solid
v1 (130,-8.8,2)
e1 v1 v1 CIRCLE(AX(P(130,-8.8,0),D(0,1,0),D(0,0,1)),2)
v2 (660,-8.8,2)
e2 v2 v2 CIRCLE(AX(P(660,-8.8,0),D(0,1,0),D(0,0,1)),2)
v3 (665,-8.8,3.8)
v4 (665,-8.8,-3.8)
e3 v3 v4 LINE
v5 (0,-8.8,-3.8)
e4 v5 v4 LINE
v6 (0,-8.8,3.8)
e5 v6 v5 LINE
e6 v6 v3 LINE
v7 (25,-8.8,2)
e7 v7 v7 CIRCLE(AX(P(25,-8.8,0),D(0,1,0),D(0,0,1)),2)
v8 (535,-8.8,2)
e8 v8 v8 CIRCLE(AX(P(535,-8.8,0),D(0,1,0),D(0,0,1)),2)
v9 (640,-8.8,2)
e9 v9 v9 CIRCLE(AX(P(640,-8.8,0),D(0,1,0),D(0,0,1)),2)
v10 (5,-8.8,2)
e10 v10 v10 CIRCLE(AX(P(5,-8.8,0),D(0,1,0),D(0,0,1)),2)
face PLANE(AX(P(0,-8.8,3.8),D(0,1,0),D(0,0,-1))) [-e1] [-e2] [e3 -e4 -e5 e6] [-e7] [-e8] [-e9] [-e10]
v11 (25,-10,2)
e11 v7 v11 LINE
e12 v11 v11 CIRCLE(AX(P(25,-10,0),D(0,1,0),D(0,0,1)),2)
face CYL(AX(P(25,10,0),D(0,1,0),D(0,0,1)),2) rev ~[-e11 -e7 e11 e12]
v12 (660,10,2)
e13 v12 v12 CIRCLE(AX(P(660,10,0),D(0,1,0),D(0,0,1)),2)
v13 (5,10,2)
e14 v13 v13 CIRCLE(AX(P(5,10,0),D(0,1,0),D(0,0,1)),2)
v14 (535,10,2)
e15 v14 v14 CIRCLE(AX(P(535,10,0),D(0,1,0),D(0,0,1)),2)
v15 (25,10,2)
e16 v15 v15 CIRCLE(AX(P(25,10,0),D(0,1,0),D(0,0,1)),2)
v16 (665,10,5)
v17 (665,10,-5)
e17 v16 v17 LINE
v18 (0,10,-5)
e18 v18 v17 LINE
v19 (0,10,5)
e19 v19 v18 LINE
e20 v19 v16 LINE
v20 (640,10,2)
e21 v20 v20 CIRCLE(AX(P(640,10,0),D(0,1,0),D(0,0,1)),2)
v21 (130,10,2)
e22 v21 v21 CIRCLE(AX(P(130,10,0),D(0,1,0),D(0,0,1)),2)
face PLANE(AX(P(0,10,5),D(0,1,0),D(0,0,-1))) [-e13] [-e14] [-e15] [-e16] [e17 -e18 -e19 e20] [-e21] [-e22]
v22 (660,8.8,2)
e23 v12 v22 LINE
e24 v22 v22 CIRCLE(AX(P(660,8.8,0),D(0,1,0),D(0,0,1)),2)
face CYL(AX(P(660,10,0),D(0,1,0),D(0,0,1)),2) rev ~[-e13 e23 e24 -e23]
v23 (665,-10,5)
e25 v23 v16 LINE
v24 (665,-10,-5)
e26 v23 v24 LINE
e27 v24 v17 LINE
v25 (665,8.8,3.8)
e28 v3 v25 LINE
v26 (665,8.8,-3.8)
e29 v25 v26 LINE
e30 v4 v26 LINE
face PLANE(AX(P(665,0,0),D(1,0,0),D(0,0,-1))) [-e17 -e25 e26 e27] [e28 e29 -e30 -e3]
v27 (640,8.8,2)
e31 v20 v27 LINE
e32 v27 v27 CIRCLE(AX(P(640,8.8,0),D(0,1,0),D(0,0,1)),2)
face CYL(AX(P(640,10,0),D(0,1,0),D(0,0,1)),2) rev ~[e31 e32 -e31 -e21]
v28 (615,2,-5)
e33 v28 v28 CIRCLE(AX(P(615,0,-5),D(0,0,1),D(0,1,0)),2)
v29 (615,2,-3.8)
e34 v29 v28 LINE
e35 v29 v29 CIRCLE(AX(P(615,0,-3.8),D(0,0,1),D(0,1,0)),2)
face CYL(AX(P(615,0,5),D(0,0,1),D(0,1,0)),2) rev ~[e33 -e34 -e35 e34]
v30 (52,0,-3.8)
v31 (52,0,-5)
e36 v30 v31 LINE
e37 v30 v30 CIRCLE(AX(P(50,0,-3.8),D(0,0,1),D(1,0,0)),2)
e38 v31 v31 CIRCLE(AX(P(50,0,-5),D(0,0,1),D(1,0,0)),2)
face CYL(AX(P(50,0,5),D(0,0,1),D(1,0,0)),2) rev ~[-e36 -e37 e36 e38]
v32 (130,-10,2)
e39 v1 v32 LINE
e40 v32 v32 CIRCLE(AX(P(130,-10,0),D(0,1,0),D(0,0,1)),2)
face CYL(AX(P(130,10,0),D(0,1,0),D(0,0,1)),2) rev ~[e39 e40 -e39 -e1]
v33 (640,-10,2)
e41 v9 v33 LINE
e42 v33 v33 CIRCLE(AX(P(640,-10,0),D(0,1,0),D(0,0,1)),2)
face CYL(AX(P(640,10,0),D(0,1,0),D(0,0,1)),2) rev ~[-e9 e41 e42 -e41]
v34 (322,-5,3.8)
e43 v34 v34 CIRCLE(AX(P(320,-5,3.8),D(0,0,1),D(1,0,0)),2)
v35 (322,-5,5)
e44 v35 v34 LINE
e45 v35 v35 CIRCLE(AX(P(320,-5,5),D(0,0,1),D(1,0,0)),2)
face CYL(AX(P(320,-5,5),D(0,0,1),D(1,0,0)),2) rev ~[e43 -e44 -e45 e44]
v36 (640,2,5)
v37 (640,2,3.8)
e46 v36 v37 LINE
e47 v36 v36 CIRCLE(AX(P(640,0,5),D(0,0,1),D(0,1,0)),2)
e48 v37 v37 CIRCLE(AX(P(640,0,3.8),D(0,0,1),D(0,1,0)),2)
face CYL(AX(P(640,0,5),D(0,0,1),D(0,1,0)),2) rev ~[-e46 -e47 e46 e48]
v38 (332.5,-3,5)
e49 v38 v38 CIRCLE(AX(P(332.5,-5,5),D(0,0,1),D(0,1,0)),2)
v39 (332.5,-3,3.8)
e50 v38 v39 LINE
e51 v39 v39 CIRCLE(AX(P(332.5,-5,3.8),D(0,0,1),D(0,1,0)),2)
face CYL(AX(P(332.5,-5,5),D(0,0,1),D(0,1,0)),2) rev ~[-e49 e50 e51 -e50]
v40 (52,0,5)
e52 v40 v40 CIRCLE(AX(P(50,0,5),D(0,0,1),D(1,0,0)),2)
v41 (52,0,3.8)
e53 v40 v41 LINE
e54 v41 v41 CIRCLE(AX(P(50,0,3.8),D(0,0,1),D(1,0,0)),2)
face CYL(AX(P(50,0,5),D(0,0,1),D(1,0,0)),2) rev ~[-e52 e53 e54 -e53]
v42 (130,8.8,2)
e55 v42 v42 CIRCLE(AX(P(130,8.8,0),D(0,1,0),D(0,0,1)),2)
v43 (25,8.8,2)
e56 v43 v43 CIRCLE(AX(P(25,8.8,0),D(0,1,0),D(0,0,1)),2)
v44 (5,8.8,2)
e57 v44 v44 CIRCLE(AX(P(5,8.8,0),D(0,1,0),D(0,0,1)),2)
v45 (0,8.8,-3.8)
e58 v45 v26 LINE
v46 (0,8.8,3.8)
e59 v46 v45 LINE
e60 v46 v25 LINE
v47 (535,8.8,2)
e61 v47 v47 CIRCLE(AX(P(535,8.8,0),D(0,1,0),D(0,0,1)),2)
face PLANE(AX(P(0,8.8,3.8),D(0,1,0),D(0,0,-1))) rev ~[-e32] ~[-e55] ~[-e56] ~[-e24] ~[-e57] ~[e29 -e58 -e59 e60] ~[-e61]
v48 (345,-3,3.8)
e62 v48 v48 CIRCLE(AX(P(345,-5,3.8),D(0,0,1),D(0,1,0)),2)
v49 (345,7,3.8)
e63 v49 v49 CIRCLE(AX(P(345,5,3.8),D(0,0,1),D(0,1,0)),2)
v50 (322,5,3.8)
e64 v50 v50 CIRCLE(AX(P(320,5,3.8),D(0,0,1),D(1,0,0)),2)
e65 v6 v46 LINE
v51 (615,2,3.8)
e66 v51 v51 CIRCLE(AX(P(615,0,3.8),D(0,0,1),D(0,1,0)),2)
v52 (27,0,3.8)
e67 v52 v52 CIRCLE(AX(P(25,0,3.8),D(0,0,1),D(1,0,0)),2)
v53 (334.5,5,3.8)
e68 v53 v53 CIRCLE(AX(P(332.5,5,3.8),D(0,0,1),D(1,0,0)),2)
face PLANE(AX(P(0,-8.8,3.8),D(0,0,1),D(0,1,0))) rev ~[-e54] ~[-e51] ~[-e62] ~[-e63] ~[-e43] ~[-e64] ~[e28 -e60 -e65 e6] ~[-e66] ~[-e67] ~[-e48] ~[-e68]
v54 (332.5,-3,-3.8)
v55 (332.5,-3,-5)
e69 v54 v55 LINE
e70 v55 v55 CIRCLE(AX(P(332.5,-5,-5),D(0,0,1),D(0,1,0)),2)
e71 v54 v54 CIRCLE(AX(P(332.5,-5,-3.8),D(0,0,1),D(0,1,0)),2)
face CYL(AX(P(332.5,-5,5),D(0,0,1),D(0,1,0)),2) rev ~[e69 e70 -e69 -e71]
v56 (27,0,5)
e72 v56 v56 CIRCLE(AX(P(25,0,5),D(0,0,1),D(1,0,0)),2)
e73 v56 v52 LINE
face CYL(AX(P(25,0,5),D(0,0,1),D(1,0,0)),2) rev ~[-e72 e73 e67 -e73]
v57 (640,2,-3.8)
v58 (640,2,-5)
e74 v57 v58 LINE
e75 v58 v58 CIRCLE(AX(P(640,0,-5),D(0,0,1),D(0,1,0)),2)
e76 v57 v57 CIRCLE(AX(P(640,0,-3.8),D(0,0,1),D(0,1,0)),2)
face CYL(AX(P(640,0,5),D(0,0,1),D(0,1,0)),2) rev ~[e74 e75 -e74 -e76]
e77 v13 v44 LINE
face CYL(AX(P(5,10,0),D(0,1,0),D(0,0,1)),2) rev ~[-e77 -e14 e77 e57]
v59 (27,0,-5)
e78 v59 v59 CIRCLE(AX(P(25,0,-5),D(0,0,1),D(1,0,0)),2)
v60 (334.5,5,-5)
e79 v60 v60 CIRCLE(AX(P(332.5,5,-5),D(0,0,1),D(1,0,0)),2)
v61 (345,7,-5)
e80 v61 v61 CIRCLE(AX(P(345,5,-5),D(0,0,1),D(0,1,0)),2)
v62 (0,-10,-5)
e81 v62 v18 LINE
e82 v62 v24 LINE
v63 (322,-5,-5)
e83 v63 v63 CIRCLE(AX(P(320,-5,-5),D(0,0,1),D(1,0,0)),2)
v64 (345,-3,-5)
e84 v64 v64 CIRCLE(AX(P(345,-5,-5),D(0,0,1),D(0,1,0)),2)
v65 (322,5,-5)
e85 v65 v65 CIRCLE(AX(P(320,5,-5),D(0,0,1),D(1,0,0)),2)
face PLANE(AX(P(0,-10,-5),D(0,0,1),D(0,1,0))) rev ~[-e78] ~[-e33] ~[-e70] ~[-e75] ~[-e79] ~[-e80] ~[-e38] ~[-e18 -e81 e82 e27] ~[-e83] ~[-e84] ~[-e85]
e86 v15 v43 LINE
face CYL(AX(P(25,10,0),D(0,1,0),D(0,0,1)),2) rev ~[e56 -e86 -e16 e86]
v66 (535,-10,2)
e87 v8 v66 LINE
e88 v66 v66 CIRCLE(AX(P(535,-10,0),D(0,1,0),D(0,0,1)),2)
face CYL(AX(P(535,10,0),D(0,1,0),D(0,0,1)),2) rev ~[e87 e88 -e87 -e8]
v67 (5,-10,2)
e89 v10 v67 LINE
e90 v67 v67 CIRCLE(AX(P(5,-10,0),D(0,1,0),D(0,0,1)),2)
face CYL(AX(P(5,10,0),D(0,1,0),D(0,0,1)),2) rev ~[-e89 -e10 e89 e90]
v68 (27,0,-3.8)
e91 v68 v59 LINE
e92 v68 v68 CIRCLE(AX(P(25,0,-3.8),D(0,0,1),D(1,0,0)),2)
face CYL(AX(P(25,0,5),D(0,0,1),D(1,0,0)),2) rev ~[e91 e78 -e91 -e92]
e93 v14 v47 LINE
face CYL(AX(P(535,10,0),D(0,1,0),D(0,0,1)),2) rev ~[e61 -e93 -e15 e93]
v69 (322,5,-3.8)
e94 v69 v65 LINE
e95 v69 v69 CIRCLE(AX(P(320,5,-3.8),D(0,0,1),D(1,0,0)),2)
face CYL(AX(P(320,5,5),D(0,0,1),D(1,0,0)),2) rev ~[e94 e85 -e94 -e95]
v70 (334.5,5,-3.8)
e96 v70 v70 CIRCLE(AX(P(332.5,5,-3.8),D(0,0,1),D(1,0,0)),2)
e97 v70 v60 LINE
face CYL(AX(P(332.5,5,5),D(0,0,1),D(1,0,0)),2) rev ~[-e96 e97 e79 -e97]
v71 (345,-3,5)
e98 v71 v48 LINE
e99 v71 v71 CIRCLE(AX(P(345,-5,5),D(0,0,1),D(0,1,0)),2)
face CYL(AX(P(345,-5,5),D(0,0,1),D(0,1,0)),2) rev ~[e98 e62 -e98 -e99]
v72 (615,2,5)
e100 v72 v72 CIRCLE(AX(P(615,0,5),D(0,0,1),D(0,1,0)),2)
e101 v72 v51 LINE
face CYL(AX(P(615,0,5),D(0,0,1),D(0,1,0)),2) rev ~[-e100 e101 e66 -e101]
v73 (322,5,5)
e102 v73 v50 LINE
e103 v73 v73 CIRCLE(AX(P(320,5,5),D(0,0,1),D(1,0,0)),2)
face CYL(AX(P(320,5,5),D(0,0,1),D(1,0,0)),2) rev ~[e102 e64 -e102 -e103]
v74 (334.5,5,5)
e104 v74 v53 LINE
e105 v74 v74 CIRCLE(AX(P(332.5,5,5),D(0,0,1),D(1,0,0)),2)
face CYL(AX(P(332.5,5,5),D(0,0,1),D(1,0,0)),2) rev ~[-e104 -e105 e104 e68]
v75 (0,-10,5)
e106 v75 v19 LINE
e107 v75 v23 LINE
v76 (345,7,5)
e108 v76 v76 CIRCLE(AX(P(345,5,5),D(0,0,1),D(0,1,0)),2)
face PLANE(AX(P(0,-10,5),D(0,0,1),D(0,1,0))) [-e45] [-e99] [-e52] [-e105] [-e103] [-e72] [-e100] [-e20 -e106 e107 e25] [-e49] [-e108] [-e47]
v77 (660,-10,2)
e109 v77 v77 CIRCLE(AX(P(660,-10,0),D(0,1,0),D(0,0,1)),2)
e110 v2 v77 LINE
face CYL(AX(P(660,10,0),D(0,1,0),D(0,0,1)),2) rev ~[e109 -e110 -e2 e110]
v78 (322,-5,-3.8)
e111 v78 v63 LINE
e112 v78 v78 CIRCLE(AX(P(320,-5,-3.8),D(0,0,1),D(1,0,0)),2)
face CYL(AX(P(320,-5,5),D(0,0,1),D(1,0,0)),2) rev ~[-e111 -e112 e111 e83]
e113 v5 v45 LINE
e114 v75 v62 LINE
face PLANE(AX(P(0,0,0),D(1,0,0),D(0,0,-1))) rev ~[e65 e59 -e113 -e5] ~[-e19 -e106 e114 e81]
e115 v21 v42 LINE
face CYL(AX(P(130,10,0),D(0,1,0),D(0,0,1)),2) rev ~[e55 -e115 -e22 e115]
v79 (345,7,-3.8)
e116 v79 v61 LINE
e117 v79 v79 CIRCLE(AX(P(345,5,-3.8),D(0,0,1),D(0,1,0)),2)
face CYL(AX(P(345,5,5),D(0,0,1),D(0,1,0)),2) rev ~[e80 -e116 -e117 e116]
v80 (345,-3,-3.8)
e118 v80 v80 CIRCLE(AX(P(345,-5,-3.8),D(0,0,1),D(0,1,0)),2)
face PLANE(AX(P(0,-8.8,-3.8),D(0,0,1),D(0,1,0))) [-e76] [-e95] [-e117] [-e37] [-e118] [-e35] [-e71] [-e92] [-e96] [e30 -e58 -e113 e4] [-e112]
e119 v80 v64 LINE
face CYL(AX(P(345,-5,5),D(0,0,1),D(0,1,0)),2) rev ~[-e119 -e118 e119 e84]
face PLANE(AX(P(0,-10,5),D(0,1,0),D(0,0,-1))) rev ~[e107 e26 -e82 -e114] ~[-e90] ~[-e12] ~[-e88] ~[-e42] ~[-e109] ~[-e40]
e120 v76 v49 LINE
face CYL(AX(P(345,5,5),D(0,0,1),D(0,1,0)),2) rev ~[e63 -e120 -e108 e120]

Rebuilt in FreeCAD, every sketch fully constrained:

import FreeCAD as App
import Part
import Sketcher
Q = App.Units.Quantity


def add_polygon(sketch, points):
    """Adds a closed chain of lines whose ends are joined by coincident constraints."""
    first, n = sketch.GeometryCount, len(points)
    for a, b in zip(points, points[1:] + points[:1]):
        sketch.addGeometry(Part.LineSegment(App.Vector(*a, 0), App.Vector(*b, 0)), False)
    for i in range(n):
        sketch.addConstraint(Sketcher.Constraint("Coincident", first + i, 2, first + (i + 1) % n, 1))

doc = App.newDocument("Part")
body = doc.addObject("PartDesign::Body", "Body")

# Sketch on YZ plane
sketch1 = doc.addObject("Sketcher::SketchObject", "Sketch")
body.addObject(sketch1)
sketch1.AttachmentSupport = (doc.YZ_Plane, [""])
sketch1.MapMode = "FlatFace"
add_polygon(sketch1, [(10, 5), (-10, 5), (-10, -5), (10, -5)])  # lines 0-3
add_polygon(sketch1, [(-8.8, -3.8), (-8.8, 3.8), (8.8, 3.8), (8.8, -3.8)])  # lines 4-7
sketch1.addConstraint([
    Sketcher.Constraint("Horizontal", 0),
    Sketcher.Constraint("Vertical", 1),
    Sketcher.Constraint("Horizontal", 2),
    Sketcher.Constraint("Vertical", 3),
    Sketcher.Constraint("Vertical", 4),
    Sketcher.Constraint("Horizontal", 5),
    Sketcher.Constraint("Vertical", 6),
    Sketcher.Constraint("Horizontal", 7),
    Sketcher.Constraint("Symmetric", 0, 2, 2, 2, -1, 1),
    Sketcher.Constraint("Symmetric", 4, 2, 6, 2, -1, 1),
    Sketcher.Constraint("DistanceX", 0, 2, 0, 1, Q("20 mm")),
    Sketcher.Constraint("DistanceY", 1, 2, 1, 1, Q("10 mm")),
    Sketcher.Constraint("DistanceX", 5, 1, 5, 2, Q("17.6 mm")),
    Sketcher.Constraint("DistanceY", 4, 1, 4, 2, Q("7.6 mm")),
])
pad1 = doc.addObject("PartDesign::Pad", "Pad")
body.addObject(pad1)
pad1.Profile = sketch1
pad1.Length = 665

# Sketch on XY plane
sketch2 = doc.addObject("Sketcher::SketchObject", "Sketch001")
body.addObject(sketch2)
sketch2.AttachmentSupport = (doc.XY_Plane, [""])
sketch2.MapMode = "FlatFace"
sketch2.AttachmentOffset = App.Placement(App.Vector(0, 0, 5), App.Rotation())
sketch2.addGeometry([
    Part.Circle(App.Vector(25, 0, 0), App.Vector(0, 0, 1), 2),  # 0
    Part.Circle(App.Vector(640, 0, 0), App.Vector(0, 0, 1), 2),  # 1
    Part.Circle(App.Vector(50, 0, 0), App.Vector(0, 0, 1), 2),  # 2
    Part.Circle(App.Vector(615, 0, 0), App.Vector(0, 0, 1), 2),  # 3
    Part.Circle(App.Vector(320, 5, 0), App.Vector(0, 0, 1), 2),  # 4
    Part.Circle(App.Vector(320, -5, 0), App.Vector(0, 0, 1), 2),  # 5
    Part.Circle(App.Vector(345, -5, 0), App.Vector(0, 0, 1), 2),  # 6
    Part.Circle(App.Vector(345, 5, 0), App.Vector(0, 0, 1), 2),  # 7
    Part.Circle(App.Vector(332.5, 5, 0), App.Vector(0, 0, 1), 2),  # 8
    Part.Circle(App.Vector(332.5, -5, 0), App.Vector(0, 0, 1), 2),  # 9
], False)
sketch2.addConstraint([
    Sketcher.Constraint("Equal", 0, 1),
    Sketcher.Constraint("Equal", 1, 2),
    Sketcher.Constraint("Equal", 2, 3),
    Sketcher.Constraint("Equal", 3, 4),
    Sketcher.Constraint("Equal", 4, 5),
    Sketcher.Constraint("Equal", 5, 6),
    Sketcher.Constraint("Equal", 6, 7),
    Sketcher.Constraint("Equal", 7, 8),
    Sketcher.Constraint("Equal", 8, 9),
    Sketcher.Constraint("Symmetric", 4, 3, 5, 3, -1),
    Sketcher.Constraint("Symmetric", 6, 3, 7, 3, -1),
    Sketcher.Constraint("Symmetric", 8, 3, 9, 3, -1),
    Sketcher.Constraint("PointOnObject", 0, 3, -1),
    Sketcher.Constraint("PointOnObject", 1, 3, -1),
    Sketcher.Constraint("PointOnObject", 2, 3, -1),
    Sketcher.Constraint("PointOnObject", 3, 3, -1),
    Sketcher.Constraint("Horizontal", 5, 3, 6, 3),
    Sketcher.Constraint("Horizontal", 7, 3, 8, 3),
    Sketcher.Constraint("Diameter", 0, Q("4 mm")),
    Sketcher.Constraint("DistanceX", -1, 1, 0, 3, Q("25 mm")),
    Sketcher.Constraint("DistanceX", -1, 1, 1, 3, Q("640 mm")),
    Sketcher.Constraint("DistanceX", -1, 1, 2, 3, Q("50 mm")),
    Sketcher.Constraint("DistanceX", -1, 1, 3, 3, Q("615 mm")),
    Sketcher.Constraint("DistanceX", -1, 1, 4, 3, Q("320 mm")),
    Sketcher.Constraint("DistanceY", -1, 1, 4, 3, Q("5 mm")),
    Sketcher.Constraint("DistanceX", -1, 1, 6, 3, Q("345 mm")),
    Sketcher.Constraint("DistanceX", -1, 1, 8, 3, Q("332.5 mm")),
])
pocket1 = doc.addObject("PartDesign::Pocket", "Pocket")
body.addObject(pocket1)
pocket1.Profile = sketch2
pocket1.Type = "ThroughAll"

# Sketch on XZ plane
sketch3 = doc.addObject("Sketcher::SketchObject", "Sketch002")
body.addObject(sketch3)
sketch3.AttachmentSupport = (doc.XZ_Plane, [""])
sketch3.MapMode = "FlatFace"
sketch3.AttachmentOffset = App.Placement(App.Vector(0, 0, -10), App.Rotation())
sketch3.addGeometry([
    Part.Circle(App.Vector(5, 0, 0), App.Vector(0, 0, 1), 2),  # 0
    Part.Circle(App.Vector(130, 0, 0), App.Vector(0, 0, 1), 2),  # 1
    Part.Circle(App.Vector(535, 0, 0), App.Vector(0, 0, 1), 2),  # 2
    Part.Circle(App.Vector(660, 0, 0), App.Vector(0, 0, 1), 2),  # 3
    Part.Circle(App.Vector(25, 0, 0), App.Vector(0, 0, 1), 2),  # 4
    Part.Circle(App.Vector(640, 0, 0), App.Vector(0, 0, 1), 2),  # 5
], False)
sketch3.addConstraint([
    Sketcher.Constraint("Equal", 0, 1),
    Sketcher.Constraint("Equal", 1, 2),
    Sketcher.Constraint("Equal", 2, 3),
    Sketcher.Constraint("Equal", 3, 4),
    Sketcher.Constraint("Equal", 4, 5),
    Sketcher.Constraint("PointOnObject", 0, 3, -1),
    Sketcher.Constraint("PointOnObject", 1, 3, -1),
    Sketcher.Constraint("PointOnObject", 2, 3, -1),
    Sketcher.Constraint("PointOnObject", 3, 3, -1),
    Sketcher.Constraint("PointOnObject", 4, 3, -1),
    Sketcher.Constraint("PointOnObject", 5, 3, -1),
    Sketcher.Constraint("Diameter", 0, Q("4 mm")),
    Sketcher.Constraint("DistanceX", -1, 1, 0, 3, Q("5 mm")),
    Sketcher.Constraint("DistanceX", -1, 1, 1, 3, Q("130 mm")),
    Sketcher.Constraint("DistanceX", -1, 1, 2, 3, Q("535 mm")),
    Sketcher.Constraint("DistanceX", -1, 1, 3, 3, Q("660 mm")),
    Sketcher.Constraint("DistanceX", -1, 1, 4, 3, Q("25 mm")),
    Sketcher.Constraint("DistanceX", -1, 1, 5, 3, Q("640 mm")),
])
pocket2 = doc.addObject("PartDesign::Pocket", "Pocket001")
body.addObject(pocket2)
pocket2.Profile = sketch3
pocket2.Type = "ThroughAll"
pocket2.Reversed = True

doc.recompute()
